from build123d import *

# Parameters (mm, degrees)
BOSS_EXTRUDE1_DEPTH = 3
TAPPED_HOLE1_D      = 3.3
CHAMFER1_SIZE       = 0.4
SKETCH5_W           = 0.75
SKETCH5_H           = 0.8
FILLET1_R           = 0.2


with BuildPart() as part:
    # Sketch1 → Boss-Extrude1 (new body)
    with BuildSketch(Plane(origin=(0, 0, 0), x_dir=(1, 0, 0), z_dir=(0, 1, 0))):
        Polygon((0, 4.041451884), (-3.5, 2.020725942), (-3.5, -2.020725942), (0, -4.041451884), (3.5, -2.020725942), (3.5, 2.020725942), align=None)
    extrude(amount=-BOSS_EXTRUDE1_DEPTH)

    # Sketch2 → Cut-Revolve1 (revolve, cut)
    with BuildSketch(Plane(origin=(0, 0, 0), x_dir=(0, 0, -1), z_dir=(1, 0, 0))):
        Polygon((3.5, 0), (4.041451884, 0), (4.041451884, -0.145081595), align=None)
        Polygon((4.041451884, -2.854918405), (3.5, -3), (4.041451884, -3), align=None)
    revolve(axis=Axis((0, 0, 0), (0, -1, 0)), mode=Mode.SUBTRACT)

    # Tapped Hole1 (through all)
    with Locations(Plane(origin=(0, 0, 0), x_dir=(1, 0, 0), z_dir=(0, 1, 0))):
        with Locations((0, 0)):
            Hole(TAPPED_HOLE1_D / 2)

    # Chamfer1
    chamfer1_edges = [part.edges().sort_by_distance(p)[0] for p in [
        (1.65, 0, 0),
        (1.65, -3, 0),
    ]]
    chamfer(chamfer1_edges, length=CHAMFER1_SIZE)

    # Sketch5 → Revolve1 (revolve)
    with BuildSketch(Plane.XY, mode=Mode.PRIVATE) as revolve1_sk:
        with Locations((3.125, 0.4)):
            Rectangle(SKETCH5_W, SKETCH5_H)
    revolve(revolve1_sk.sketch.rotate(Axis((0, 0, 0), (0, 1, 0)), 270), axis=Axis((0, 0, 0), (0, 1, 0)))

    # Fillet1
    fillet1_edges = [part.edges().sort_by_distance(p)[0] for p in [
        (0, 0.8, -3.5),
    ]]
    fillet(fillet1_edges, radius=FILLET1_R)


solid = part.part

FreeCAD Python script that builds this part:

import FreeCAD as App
import Part
import Sketcher

V = App.Vector
Q = App.Units.Quantity


def edges_at(feature, points):
    """Names of the edges that pass closest to the given points."""
    edges = feature.Shape.Edges
    near = lambda p: min(range(len(edges)), key=lambda i: edges[i].distToShape(Part.Vertex(*p))[0])
    return sorted({f"Edge{near(p) + 1}" for p in points})


def add_polygon(sketch, points):
    """Adds a closed chain of lines whose ends are joined by coincident constraints."""
    first, n = sketch.GeometryCount, len(points)
    for a, b in zip(points, points[1:] + points[:1]):
        sketch.addGeometry(Part.LineSegment(App.Vector(*a, 0), App.Vector(*b, 0)), False)
    for i in range(n):
        sketch.addConstraint(Sketcher.Constraint("Coincident", first + i, 2, first + (i + 1) % n, 1))

doc = App.newDocument("Part")
body = doc.addObject("PartDesign::Body", "Body")

# Sketch on XZ plane
sketch1 = doc.addObject("Sketcher::SketchObject", "Sketch")
body.addObject(sketch1)
sketch1.AttachmentSupport = (doc.XZ_Plane, [""])
sketch1.MapMode = "FlatFace"
add_polygon(sketch1, [(0, -4), (-3.5, -2), (-3.5, 2), (0, 4), (3.5, 2), (3.5, -2)])  # lines 0-5
sketch1.addConstraint(Sketcher.Constraint("Vertical", 1))
sketch1.addConstraint(Sketcher.Constraint("Vertical", 4))
sketch1.addConstraint(Sketcher.Constraint("Symmetric", 0, 2, 3, 2, -1, 1))
sketch1.addConstraint(Sketcher.Constraint("Symmetric", 2, 2, 5, 2, -1, 1))
sketch1.addConstraint(Sketcher.Constraint("PointOnObject", 2, 2, -2))
sketch1.addConstraint(Sketcher.Constraint("Parallel", 2, 5))
sketch1.addConstraint(Sketcher.Constraint("Horizontal", 1, 2, 3, 2))
sketch1.addConstraint(Sketcher.Constraint("Angle", 0, Q("150 deg")))
sketch1.addConstraint(Sketcher.Constraint("DistanceX", 1, 2, 3, 2, 7.0))
sketch1.addConstraint(Sketcher.Constraint("DistanceY", 1, 1, 1, 2, 4.041452))
pad1 = doc.addObject("PartDesign::Pad", "Pad")
body.addObject(pad1)
pad1.Profile = sketch1
pad1.Length = 3

# Sketch on YZ plane
sketch2 = doc.addObject("Sketcher::SketchObject", "Sketch001")
body.addObject(sketch2)
sketch2.AttachmentSupport = (doc.YZ_Plane, [""])
sketch2.MapMode = "FlatFace"
add_polygon(sketch2, [(0, -4.04), (0, -3.5), (-0.15, -4.04)])  # lines 0-2
add_polygon(sketch2, [(-2.85, -4.04), (-3, -3.5), (-3, -4.04)])  # lines 3-5
sketch2.addConstraint(Sketcher.Constraint("Vertical", 0))
sketch2.addConstraint(Sketcher.Constraint("Horizontal", 2))
sketch2.addConstraint(Sketcher.Constraint("Vertical", 4))
sketch2.addConstraint(Sketcher.Constraint("Horizontal", 5))
sketch2.addConstraint(Sketcher.Constraint("PointOnObject", 0, 2, -2))
sketch2.addConstraint(Sketcher.Constraint("Horizontal", 0, 2, 3, 2))
sketch2.addConstraint(Sketcher.Constraint("Horizontal", 2, 2, 4, 2))
sketch2.addConstraint(Sketcher.Constraint("Equal", 2, 5))
sketch2.addConstraint(Sketcher.Constraint("Angle", 1, Q("-105 deg")))
sketch2.addConstraint(Sketcher.Constraint("DistanceX", 3, 2, -1, 1, 3.0))
sketch2.addConstraint(Sketcher.Constraint("DistanceY", 0, 2, -1, 1, 3.5))
sketch2.addConstraint(Sketcher.Constraint("DistanceX", 2, 1, 2, 2, 0.145082))
groove = doc.addObject("PartDesign::Groove", "Groove")
body.addObject(groove)
groove.Profile = sketch2
groove.ReferenceAxis = (sketch2, ["H_Axis"])
groove.Angle = 360

# Sketch on XZ plane
sketch3 = doc.addObject("Sketcher::SketchObject", "Sketch002")
body.addObject(sketch3)
sketch3.AttachmentSupport = (doc.XZ_Plane, [""])
sketch3.MapMode = "FlatFace"
sketch3.addGeometry(Part.Circle(V(0, 0, 0), V(0, 0, 1), 1.6), False)
sketch3.addConstraint(Sketcher.Constraint("Coincident", 0, 3, -1, 1))
sketch3.addConstraint(Sketcher.Constraint("Diameter", 0, 3.3))
doc.recompute()
hole = doc.addObject("PartDesign::Hole", "Hole")
body.addObject(hole)
hole.Profile = sketch3
hole.ThreadType = "None"
hole.Diameter = 3.3
hole.DepthType = "ThroughAll"
hole.Reversed = True
doc.recompute()

chamfer = doc.addObject("PartDesign::Chamfer", "Chamfer")
body.addObject(chamfer)
chamfer.Base = (hole, edges_at(hole, [(1.65, 0, 0), (1.65, -3, 0)]))
chamfer.Size = 0.4

# Sketch on XY plane
sketch4 = doc.addObject("Sketcher::SketchObject", "Sketch003")
body.addObject(sketch4)
sketch4.AttachmentSupport = (doc.XY_Plane, [""])
sketch4.MapMode = "FlatFace"
add_polygon(sketch4, [(2.8, 0.8), (2.8, 0), (3.5, 0), (3.5, 0.8)])  # lines 0-3
sketch4.addConstraint(Sketcher.Constraint("Vertical", 0))
sketch4.addConstraint(Sketcher.Constraint("Horizontal", 1))
sketch4.addConstraint(Sketcher.Constraint("Vertical", 2))
sketch4.addConstraint(Sketcher.Constraint("Horizontal", 3))
sketch4.addConstraint(Sketcher.Constraint("PointOnObject", 0, 2, -1))
sketch4.addConstraint(Sketcher.Constraint("DistanceY", 0, 2, 0, 1, 0.8))
sketch4.addConstraint(Sketcher.Constraint("DistanceX", 1, 1, 1, 2, 0.75))
sketch4.addConstraint(Sketcher.Constraint("DistanceX", -1, 1, 1, 2, 3.5))
revolution = doc.addObject("PartDesign::Revolution", "Revolution")
body.addObject(revolution)
revolution.Profile = sketch4
revolution.ReferenceAxis = (sketch4, ["V_Axis"])
revolution.Angle = 360
doc.recompute()

fillet = doc.addObject("PartDesign::Fillet", "Fillet")
body.addObject(fillet)
fillet.Base = (revolution, edges_at(revolution, [(0, 0.8, -3.5)]))
fillet.Radius = 0.2

doc.recompute()
